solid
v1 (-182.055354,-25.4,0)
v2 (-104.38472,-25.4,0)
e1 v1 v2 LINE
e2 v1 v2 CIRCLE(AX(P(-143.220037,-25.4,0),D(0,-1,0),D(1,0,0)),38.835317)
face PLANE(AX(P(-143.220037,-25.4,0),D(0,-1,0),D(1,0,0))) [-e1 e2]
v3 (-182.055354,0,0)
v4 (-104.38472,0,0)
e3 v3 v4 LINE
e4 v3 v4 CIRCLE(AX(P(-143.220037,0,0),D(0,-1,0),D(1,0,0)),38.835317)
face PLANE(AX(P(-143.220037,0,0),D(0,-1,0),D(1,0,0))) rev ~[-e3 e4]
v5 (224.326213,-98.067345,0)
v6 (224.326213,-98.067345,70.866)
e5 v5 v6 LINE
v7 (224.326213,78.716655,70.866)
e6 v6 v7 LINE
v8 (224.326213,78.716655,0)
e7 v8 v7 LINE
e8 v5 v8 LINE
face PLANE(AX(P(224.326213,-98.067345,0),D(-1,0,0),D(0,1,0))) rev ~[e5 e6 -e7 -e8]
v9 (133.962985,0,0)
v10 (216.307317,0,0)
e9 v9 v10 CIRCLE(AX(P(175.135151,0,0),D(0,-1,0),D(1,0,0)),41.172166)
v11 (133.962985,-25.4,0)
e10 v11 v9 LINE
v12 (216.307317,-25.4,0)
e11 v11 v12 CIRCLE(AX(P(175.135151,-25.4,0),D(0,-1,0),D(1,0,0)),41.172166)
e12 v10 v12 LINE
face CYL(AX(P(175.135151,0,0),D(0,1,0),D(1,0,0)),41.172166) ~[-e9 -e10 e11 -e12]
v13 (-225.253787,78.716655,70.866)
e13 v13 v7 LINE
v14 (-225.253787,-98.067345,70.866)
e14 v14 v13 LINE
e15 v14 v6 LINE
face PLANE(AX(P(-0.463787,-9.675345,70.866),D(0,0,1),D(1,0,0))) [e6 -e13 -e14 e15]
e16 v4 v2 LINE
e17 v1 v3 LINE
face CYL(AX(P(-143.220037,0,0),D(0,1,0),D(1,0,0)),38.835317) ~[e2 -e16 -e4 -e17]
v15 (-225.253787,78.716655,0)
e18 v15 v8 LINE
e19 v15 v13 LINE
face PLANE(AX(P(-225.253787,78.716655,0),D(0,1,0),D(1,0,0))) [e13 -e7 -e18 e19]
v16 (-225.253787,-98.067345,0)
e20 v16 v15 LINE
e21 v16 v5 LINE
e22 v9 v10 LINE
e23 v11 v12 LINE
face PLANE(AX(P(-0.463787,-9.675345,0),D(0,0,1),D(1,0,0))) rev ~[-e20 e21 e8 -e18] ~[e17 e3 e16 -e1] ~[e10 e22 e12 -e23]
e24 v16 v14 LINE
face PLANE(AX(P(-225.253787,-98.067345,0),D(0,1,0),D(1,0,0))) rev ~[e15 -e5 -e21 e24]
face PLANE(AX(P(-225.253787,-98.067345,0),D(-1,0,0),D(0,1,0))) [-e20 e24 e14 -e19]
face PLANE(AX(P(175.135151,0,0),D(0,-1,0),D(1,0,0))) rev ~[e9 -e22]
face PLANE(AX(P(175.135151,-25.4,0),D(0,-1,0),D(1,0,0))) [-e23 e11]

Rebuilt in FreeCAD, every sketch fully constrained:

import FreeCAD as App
import Part
import Sketcher
Q = App.Units.Quantity

doc = App.newDocument("Part")
params = doc.addObject("Spreadsheet::Sheet", "Params")
for row, (alias, value) in enumerate([
    ("sketch1_width", "17.7 in"),
    ("sketch1_height", "6.96 in"),
    ("pad1_length", "2.79 in"),
    ("pad2_length", "1 in"),
], start=1):
    params.set(f"A{row}", alias)
    params.set(f"B{row}", "=" + value)
    params.setAlias(f"B{row}", alias)

body = doc.addObject("PartDesign::Body", "Body")

sketch1 = doc.addObject("Sketcher::SketchObject", "Sketch")
body.addObject(sketch1)
sketch1.AttachmentSupport = (doc.XY_Plane, [""])
sketch1.MapMode = "FlatFace"
sketch1.addGeometry([
    Part.LineSegment(App.Vector(-225, 79, 0), App.Vector(-225, -98, 0)),
    Part.LineSegment(App.Vector(-225, -98, 0), App.Vector(224, -98, 0)),
    Part.LineSegment(App.Vector(224, -98, 0), App.Vector(224, 79, 0)),
    Part.LineSegment(App.Vector(224, 79, 0), App.Vector(-225, 79, 0)),
], False)
sketch1.addConstraint([
    Sketcher.Constraint("Coincident", 0, 2, 1, 1),
    Sketcher.Constraint("Coincident", 1, 2, 2, 1),
    Sketcher.Constraint("Coincident", 2, 2, 3, 1),
    Sketcher.Constraint("Coincident", 3, 2, 0, 1),
    Sketcher.Constraint("Vertical", 0),
    Sketcher.Constraint("Horizontal", 1),
    Sketcher.Constraint("Vertical", 2),
    Sketcher.Constraint("Horizontal", 3),
    Sketcher.Constraint("DistanceX", 1, 1, 1, 2, Q("17.7 in")),
    Sketcher.Constraint("DistanceY", 0, 2, 0, 1, Q("6.96 in")),
    Sketcher.Constraint("DistanceX", 0, 2, -1, 1, Q("225.253787 mm")),
    Sketcher.Constraint("DistanceY", 0, 2, -1, 1, Q("98.067345 mm")),
])
sketch1.setExpression("Constraints[8]", "Params.sketch1_width")
sketch1.setExpression("Constraints[9]", "Params.sketch1_height")
pad1 = doc.addObject("PartDesign::Pad", "Pad")
body.addObject(pad1)
pad1.Profile = sketch1
pad1.setExpression("Length", "Params.pad1_length")

sketch2 = doc.addObject("Sketcher::SketchObject", "Sketch001")
body.addObject(sketch2)
sketch2.AttachmentSupport = (doc.XZ_Plane, [""])
sketch2.MapMode = "FlatFace"
sketch2.addGeometry([
    Part.Circle(App.Vector(-143, 0, 0), App.Vector(0, 0, 1), 39),
    Part.Circle(App.Vector(175, 0, 0), App.Vector(0, 0, 1), 41),
], False)
sketch2.addConstraint([
    Sketcher.Constraint("PointOnObject", 0, 3, -1),
    Sketcher.Constraint("PointOnObject", 1, 3, -1),
    Sketcher.Constraint("Diameter", 1, Q("82.344332 mm")),
    Sketcher.Constraint("Diameter", 0, Q("77.670634 mm")),
    Sketcher.Constraint("DistanceX", -1, 1, 1, 3, Q("175.135151 mm")),
    Sketcher.Constraint("DistanceX", 0, 3, 1, 3, Q("318.355188 mm")),
])
pad2 = doc.addObject("PartDesign::Pad", "Pad001")
body.addObject(pad2)
pad2.Profile = sketch2
pad2.setExpression("Length", "Params.pad2_length")

doc.recompute()
